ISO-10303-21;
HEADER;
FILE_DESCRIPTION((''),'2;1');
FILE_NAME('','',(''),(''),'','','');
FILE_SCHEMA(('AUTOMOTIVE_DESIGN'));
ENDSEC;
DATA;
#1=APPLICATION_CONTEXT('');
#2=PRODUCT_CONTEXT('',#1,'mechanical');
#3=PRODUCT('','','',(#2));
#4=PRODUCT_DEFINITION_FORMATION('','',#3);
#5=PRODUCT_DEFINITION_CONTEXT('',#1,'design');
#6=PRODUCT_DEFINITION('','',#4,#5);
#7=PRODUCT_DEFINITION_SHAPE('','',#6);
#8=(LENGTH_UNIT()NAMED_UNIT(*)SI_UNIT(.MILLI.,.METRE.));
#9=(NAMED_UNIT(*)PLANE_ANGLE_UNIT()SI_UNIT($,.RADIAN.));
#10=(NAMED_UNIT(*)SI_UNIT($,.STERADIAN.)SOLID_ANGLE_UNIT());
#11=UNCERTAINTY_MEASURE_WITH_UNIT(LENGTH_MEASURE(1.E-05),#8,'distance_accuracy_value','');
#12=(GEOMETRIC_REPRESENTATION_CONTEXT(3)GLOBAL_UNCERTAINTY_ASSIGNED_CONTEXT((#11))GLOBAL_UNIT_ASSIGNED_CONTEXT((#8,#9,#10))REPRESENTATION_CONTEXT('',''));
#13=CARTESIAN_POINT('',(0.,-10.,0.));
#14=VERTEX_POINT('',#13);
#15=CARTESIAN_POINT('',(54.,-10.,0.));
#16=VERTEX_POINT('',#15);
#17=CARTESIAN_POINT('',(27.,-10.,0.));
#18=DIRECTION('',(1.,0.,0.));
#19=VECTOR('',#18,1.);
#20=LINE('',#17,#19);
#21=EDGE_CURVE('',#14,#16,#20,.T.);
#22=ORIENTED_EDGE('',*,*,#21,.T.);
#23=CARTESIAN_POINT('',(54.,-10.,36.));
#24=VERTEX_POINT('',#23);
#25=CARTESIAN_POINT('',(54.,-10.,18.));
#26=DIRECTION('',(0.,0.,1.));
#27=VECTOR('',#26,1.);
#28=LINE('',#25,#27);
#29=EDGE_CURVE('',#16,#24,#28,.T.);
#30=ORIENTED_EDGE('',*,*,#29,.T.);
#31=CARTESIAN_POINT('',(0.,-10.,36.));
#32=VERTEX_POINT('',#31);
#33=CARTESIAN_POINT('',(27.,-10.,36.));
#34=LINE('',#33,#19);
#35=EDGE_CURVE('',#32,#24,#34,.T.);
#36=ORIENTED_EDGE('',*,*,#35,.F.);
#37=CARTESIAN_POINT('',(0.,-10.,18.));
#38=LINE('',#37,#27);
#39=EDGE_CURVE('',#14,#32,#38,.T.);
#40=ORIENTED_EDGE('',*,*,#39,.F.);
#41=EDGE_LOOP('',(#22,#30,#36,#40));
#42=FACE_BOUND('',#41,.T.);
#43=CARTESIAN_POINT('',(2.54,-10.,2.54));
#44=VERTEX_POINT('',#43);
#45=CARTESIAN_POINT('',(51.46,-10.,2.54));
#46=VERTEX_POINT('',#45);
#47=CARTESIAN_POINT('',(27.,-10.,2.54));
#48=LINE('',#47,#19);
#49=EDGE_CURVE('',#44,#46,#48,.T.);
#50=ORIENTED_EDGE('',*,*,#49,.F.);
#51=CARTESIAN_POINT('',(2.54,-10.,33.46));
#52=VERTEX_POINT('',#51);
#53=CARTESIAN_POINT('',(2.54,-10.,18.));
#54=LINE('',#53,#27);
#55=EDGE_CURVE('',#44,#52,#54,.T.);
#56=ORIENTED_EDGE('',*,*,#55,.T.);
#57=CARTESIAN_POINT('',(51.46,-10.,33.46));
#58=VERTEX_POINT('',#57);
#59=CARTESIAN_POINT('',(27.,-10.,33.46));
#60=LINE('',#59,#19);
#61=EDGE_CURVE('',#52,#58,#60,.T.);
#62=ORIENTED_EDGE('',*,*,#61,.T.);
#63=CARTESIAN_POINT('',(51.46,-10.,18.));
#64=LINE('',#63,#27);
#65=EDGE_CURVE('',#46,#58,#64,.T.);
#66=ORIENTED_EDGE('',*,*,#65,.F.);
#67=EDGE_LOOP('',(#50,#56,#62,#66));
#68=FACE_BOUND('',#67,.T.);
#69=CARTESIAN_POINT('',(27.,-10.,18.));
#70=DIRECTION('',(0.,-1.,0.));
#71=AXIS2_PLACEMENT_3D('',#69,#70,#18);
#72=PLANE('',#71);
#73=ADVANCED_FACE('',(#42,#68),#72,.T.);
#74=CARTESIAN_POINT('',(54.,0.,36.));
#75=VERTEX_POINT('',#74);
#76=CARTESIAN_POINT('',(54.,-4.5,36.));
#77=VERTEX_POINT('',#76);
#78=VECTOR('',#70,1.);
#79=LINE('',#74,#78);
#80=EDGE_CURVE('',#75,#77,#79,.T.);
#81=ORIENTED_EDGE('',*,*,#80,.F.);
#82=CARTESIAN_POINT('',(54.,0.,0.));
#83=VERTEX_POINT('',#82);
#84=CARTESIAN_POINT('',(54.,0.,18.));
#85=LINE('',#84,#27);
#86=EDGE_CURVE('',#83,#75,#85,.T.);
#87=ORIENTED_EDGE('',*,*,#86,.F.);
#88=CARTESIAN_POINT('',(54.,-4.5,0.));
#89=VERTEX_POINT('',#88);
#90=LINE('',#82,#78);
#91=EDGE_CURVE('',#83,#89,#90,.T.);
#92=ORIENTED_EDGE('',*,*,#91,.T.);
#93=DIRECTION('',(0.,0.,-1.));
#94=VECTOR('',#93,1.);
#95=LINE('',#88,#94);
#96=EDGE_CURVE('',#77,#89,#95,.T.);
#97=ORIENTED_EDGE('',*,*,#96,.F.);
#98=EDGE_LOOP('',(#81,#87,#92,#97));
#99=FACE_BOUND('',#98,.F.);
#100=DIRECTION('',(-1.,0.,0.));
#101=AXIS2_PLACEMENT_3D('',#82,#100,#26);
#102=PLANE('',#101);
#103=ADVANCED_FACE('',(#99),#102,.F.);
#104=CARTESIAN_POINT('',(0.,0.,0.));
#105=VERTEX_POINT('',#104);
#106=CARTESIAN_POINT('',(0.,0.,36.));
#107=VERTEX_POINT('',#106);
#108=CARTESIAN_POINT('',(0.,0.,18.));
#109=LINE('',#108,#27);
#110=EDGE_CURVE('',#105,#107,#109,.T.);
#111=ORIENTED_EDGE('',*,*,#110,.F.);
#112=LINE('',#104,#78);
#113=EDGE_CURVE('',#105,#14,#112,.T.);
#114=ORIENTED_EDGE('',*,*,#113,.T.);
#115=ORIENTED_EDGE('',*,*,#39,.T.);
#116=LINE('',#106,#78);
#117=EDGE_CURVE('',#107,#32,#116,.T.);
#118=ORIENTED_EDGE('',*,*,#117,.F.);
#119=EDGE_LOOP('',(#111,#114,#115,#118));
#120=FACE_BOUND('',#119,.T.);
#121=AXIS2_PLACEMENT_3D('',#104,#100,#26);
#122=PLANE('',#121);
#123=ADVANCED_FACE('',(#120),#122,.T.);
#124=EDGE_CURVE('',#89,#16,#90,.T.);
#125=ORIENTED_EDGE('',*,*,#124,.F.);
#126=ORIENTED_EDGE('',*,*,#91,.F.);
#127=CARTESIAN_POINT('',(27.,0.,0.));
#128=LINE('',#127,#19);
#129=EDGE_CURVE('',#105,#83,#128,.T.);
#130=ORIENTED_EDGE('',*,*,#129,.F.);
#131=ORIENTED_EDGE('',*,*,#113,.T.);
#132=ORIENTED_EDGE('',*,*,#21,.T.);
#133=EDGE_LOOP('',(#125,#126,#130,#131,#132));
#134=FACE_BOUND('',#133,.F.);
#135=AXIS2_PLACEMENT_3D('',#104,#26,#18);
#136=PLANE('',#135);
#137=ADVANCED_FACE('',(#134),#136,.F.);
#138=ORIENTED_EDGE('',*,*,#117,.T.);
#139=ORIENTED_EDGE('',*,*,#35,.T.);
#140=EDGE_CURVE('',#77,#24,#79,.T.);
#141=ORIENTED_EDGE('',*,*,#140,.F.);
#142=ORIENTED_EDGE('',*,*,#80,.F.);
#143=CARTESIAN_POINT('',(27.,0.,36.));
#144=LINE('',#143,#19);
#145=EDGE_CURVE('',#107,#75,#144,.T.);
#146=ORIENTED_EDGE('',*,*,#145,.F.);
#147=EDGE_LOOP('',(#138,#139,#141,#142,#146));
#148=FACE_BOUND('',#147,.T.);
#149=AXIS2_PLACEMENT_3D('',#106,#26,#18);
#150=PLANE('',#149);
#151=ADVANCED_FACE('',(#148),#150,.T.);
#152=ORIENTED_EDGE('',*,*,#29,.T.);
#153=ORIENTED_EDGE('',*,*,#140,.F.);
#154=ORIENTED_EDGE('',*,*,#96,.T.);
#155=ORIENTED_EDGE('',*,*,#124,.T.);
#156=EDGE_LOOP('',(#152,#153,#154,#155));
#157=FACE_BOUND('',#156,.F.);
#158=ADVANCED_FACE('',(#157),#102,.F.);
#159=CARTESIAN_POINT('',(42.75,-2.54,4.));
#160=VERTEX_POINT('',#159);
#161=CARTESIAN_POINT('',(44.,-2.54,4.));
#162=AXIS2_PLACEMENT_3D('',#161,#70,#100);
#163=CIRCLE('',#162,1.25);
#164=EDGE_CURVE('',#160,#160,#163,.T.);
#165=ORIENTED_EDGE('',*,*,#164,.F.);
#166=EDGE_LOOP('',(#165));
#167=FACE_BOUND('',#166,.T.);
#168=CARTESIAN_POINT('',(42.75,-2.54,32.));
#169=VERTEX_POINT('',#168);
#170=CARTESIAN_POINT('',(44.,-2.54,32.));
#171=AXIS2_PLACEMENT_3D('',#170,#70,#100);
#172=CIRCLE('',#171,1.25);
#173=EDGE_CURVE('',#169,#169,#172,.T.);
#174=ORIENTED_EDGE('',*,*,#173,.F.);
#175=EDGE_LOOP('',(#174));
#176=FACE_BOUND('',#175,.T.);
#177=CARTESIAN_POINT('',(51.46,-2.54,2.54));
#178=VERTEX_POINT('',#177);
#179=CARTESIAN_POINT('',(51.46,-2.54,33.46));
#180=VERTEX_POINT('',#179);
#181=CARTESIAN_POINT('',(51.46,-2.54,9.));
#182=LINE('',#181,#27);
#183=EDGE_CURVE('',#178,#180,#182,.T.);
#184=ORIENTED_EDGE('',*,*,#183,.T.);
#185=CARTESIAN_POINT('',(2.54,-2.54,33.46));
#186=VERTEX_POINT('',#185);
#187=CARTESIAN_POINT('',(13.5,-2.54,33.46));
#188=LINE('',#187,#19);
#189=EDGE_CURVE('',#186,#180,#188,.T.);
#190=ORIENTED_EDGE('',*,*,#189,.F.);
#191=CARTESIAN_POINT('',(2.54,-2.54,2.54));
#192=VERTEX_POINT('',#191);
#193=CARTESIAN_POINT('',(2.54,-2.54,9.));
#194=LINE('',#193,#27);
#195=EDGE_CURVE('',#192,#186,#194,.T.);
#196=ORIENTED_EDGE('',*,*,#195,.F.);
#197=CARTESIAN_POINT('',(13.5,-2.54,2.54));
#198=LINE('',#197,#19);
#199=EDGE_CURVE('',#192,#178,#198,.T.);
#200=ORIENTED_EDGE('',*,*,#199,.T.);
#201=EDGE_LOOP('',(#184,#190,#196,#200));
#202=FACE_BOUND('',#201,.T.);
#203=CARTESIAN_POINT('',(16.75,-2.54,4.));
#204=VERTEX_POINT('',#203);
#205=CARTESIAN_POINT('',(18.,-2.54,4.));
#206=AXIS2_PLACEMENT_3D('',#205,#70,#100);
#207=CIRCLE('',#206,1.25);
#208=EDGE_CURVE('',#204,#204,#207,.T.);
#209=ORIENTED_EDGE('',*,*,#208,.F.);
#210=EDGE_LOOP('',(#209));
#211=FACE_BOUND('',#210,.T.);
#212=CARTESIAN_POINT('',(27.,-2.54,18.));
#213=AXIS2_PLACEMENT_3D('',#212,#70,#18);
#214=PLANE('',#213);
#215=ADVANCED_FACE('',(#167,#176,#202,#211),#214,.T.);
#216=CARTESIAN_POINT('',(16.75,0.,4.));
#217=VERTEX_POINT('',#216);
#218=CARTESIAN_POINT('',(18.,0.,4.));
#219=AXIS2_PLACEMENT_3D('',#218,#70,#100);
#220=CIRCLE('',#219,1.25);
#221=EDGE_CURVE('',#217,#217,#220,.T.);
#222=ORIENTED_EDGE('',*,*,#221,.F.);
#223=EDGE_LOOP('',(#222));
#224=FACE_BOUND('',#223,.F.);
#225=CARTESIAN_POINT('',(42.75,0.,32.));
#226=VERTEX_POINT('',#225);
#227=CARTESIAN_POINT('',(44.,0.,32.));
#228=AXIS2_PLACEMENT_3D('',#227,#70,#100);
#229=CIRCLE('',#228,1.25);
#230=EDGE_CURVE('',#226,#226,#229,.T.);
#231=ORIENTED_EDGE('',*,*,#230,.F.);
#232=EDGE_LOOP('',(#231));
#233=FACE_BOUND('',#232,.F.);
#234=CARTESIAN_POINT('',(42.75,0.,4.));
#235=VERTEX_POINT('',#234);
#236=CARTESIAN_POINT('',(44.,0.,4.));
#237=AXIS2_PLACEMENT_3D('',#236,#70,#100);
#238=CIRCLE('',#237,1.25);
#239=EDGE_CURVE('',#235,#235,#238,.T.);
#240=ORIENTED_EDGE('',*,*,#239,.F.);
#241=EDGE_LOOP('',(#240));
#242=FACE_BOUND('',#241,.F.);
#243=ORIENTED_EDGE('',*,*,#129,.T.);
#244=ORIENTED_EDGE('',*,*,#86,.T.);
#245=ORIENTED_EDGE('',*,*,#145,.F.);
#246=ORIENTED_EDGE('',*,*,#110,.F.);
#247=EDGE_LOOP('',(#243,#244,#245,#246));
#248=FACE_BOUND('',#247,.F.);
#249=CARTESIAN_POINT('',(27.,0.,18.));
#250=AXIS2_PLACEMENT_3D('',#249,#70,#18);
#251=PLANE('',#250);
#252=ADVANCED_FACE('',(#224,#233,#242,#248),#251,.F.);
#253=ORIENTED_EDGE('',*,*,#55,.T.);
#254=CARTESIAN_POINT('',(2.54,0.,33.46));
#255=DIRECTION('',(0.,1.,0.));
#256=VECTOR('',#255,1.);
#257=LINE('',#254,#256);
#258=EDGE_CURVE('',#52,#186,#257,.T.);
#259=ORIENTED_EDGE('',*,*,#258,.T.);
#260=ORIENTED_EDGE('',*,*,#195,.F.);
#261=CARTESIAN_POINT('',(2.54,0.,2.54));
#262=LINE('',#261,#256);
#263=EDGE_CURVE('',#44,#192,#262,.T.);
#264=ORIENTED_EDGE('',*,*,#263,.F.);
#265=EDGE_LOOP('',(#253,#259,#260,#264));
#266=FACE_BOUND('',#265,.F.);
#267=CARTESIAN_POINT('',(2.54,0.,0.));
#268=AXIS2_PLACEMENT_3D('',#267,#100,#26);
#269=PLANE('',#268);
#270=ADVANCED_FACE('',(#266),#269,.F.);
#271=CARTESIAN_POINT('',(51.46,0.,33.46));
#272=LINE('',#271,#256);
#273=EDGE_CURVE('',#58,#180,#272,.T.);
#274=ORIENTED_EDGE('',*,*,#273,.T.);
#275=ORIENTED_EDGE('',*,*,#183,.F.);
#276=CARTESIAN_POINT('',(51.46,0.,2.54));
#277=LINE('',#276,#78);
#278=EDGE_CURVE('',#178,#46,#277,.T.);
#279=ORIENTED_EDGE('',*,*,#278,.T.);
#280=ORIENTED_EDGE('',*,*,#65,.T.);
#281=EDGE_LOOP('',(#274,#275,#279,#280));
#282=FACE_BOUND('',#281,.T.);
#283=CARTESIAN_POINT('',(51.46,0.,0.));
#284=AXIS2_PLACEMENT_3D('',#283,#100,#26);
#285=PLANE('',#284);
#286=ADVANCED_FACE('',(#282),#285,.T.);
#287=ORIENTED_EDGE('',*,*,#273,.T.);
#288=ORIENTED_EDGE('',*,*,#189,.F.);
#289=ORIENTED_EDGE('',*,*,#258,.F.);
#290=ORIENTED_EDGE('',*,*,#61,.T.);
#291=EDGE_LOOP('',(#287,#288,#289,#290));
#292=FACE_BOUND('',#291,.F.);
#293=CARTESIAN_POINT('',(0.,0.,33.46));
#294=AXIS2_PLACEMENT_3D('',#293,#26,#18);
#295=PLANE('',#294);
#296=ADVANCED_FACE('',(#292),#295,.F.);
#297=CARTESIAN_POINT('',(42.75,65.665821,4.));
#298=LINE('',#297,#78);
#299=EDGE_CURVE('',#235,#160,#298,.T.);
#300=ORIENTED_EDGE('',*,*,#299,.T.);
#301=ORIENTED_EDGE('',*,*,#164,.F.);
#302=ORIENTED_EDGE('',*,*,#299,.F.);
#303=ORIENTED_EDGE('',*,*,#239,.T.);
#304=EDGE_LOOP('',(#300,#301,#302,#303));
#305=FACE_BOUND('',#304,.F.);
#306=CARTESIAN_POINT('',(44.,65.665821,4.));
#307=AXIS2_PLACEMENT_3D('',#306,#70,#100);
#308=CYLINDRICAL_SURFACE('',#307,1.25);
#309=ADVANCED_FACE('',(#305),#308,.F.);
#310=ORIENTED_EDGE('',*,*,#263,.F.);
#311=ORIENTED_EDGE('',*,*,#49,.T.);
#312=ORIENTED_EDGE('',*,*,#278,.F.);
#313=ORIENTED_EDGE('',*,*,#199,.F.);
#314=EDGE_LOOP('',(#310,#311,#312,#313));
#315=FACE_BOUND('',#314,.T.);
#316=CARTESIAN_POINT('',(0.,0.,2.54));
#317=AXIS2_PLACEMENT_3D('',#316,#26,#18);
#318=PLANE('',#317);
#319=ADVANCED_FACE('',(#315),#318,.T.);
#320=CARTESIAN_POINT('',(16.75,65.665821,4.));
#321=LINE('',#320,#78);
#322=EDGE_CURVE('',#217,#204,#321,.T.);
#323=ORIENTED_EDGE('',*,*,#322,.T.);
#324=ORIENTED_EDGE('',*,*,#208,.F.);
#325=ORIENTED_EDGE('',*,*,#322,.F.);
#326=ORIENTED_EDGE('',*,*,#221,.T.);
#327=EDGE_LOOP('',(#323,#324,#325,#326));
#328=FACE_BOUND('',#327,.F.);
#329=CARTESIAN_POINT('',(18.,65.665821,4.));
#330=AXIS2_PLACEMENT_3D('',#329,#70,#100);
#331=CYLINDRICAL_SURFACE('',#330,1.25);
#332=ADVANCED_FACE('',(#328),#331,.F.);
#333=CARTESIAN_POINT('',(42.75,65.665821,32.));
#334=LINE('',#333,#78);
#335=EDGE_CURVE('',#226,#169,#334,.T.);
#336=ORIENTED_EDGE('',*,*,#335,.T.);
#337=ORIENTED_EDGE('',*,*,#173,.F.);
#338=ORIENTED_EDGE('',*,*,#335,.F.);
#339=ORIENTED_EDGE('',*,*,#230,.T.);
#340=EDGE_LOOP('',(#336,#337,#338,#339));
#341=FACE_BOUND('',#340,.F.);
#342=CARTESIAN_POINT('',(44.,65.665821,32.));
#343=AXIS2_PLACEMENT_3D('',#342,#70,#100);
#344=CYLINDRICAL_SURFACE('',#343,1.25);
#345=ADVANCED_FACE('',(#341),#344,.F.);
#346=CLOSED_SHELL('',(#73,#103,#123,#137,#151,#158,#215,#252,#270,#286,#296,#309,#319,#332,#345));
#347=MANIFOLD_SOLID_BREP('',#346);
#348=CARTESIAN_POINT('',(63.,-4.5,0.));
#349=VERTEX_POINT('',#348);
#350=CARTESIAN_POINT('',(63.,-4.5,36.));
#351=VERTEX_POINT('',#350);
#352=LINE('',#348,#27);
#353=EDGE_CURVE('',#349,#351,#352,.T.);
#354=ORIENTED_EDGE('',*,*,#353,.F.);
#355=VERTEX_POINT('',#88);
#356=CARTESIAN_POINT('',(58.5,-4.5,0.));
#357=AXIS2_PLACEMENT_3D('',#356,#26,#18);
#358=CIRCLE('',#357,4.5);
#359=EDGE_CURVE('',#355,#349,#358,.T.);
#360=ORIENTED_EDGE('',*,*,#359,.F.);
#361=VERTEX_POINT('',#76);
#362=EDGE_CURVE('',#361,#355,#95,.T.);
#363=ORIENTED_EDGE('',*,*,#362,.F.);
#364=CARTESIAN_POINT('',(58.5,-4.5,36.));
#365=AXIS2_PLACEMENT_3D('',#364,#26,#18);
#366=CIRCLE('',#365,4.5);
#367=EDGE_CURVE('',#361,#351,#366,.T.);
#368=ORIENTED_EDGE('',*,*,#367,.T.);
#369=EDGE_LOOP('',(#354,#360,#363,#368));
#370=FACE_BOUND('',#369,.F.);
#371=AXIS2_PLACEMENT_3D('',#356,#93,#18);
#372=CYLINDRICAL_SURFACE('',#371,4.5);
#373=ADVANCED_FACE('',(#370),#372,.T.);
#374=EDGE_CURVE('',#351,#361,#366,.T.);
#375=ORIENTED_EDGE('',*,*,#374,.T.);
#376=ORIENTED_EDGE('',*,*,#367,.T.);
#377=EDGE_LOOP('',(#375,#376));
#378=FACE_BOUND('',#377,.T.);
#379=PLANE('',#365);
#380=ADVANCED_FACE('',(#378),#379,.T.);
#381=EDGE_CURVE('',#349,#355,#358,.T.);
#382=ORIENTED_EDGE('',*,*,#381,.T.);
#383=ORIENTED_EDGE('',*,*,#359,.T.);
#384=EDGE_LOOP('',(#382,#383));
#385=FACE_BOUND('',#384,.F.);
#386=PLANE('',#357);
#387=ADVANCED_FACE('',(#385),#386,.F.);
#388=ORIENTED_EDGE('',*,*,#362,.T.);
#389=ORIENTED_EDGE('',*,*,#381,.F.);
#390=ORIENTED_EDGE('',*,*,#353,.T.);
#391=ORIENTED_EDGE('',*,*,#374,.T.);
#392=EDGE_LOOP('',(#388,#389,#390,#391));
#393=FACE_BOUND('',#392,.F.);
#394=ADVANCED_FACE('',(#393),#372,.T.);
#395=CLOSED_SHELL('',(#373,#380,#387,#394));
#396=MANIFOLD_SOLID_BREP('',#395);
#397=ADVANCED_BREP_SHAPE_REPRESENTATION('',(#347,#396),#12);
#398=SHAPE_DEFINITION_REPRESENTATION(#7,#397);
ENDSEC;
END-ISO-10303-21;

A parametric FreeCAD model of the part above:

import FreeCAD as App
import Part
import Sketcher
Q = App.Units.Quantity


def faces_at(feature, points):
    """Names of the faces that lie closest to the given points."""
    faces = feature.Shape.Faces
    near = lambda p: min(range(len(faces)), key=lambda i: faces[i].distToShape(Part.Vertex(*p))[0])
    return sorted({f"Face{near(p) + 1}" for p in points})


def add_polygon(sketch, points):
    """Adds a closed chain of lines whose ends are joined by coincident constraints."""
    first, n = sketch.GeometryCount, len(points)
    for a, b in zip(points, points[1:] + points[:1]):
        sketch.addGeometry(Part.LineSegment(App.Vector(*a, 0), App.Vector(*b, 0)), False)
    for i in range(n):
        sketch.addConstraint(Sketcher.Constraint("Coincident", first + i, 2, first + (i + 1) % n, 1))

doc = App.newDocument("Part")
params = doc.addObject("Spreadsheet::Sheet", "Params")
for row, (alias, value) in enumerate([
    ("sketch1_width", "54 mm"),
    ("sketch1_height", "36 mm"),
    ("pad1_length", "10 mm"),
    ("thickness_wall", "2.54 mm"),
    ("sketch2_diameter", "2.5 mm"),
    ("hole_diameter", "2.5 mm"),
    ("sketch3_diameter", "9 mm"),
    ("pad2_length", "36 mm"),
], start=1):
    params.set(f"A{row}", alias)
    params.set(f"B{row}", "=" + value)
    params.setAlias(f"B{row}", alias)

body = doc.addObject("PartDesign::Body", "Body")
body.AllowCompound = True

sketch1 = doc.addObject("Sketcher::SketchObject", "Sketch")
body.addObject(sketch1)
sketch1.AttachmentSupport = (doc.XZ_Plane, [""])
sketch1.MapMode = "FlatFace"
add_polygon(sketch1, [(0, 36), (0, 0), (54, 0), (54, 36)])
sketch1.addConstraint([
    Sketcher.Constraint("Vertical", 0),
    Sketcher.Constraint("Horizontal", 1),
    Sketcher.Constraint("Vertical", 2),
    Sketcher.Constraint("Horizontal", 3),
    Sketcher.Constraint("Coincident", 0, 2, -1, 1),
    Sketcher.Constraint("DistanceX", 1, 1, 1, 2, Q("54 mm")),
    Sketcher.Constraint("DistanceY", 0, 2, 0, 1, Q("36 mm")),
])
sketch1.setExpression("Constraints[9]", "Params.sketch1_width")
sketch1.setExpression("Constraints[10]", "Params.sketch1_height")
pad1 = doc.addObject("PartDesign::Pad", "Pad")
body.addObject(pad1)
pad1.Profile = sketch1
pad1.setExpression("Length", "Params.pad1_length")
doc.recompute()

thickness = doc.addObject("PartDesign::Thickness", "Thickness")
body.addObject(thickness)
thickness.Base = (pad1, faces_at(pad1, [(27, -10, 18)]))
thickness.setExpression("Value", "Params.thickness_wall")
thickness.Reversed = True
thickness.Join = "Arc"

sketch2 = doc.addObject("Sketcher::SketchObject", "Sketch001")
body.addObject(sketch2)
sketch2.AttachmentSupport = (doc.XZ_Plane, [""])
sketch2.MapMode = "FlatFace"
sketch2.addGeometry([
    Part.Circle(App.Vector(44, 4, 0), App.Vector(0, 0, 1), 1.2),
    Part.Circle(App.Vector(44, 32, 0), App.Vector(0, 0, 1), 1.2),
    Part.Circle(App.Vector(18, 4, 0), App.Vector(0, 0, 1), 1.2),
], False)
sketch2.addConstraint([
    Sketcher.Constraint("Equal", 0, 1),
    Sketcher.Constraint("Equal", 1, 2),
    Sketcher.Constraint("Horizontal", 0, 3, 2, 3),
    Sketcher.Constraint("Vertical", 0, 3, 1, 3),
    Sketcher.Constraint("Diameter", 0, Q("2.5 mm")),
    Sketcher.Constraint("DistanceX", -1, 1, 0, 3, Q("44 mm")),
    Sketcher.Constraint("DistanceY", -1, 1, 0, 3, Q("4 mm")),
    Sketcher.Constraint("DistanceY", -1, 1, 1, 3, Q("32 mm")),
    Sketcher.Constraint("DistanceX", -1, 1, 2, 3, Q("18 mm")),
])
sketch2.setExpression("Constraints[4]", "Params.sketch2_diameter")
doc.recompute()
hole = doc.addObject("PartDesign::Hole", "Hole")
body.addObject(hole)
hole.Profile = sketch2
hole.ThreadType = "None"
hole.setExpression("Diameter", "Params.hole_diameter")
hole.DepthType = "ThroughAll"
hole.Reversed = True

sketch3 = doc.addObject("Sketcher::SketchObject", "Sketch002")
body.addObject(sketch3)
sketch3.AttachmentSupport = (doc.XY_Plane, [""])
sketch3.MapMode = "FlatFace"
sketch3.addGeometry(Part.Circle(App.Vector(58.5, -4.5, 0), App.Vector(0, 0, 1), 4.5), False)
sketch3.addConstraint([
    Sketcher.Constraint("Diameter", 0, Q("9 mm")),
    Sketcher.Constraint("DistanceX", -1, 1, 0, 3, Q("58.5 mm")),
    Sketcher.Constraint("DistanceY", 0, 3, -1, 1, Q("4.5 mm")),
])
sketch3.setExpression("Constraints[0]", "Params.sketch3_diameter")
pad2 = doc.addObject("PartDesign::Pad", "Pad001")
body.addObject(pad2)
pad2.Profile = sketch3
pad2.setExpression("Length", "Params.pad2_length")

doc.recompute()
